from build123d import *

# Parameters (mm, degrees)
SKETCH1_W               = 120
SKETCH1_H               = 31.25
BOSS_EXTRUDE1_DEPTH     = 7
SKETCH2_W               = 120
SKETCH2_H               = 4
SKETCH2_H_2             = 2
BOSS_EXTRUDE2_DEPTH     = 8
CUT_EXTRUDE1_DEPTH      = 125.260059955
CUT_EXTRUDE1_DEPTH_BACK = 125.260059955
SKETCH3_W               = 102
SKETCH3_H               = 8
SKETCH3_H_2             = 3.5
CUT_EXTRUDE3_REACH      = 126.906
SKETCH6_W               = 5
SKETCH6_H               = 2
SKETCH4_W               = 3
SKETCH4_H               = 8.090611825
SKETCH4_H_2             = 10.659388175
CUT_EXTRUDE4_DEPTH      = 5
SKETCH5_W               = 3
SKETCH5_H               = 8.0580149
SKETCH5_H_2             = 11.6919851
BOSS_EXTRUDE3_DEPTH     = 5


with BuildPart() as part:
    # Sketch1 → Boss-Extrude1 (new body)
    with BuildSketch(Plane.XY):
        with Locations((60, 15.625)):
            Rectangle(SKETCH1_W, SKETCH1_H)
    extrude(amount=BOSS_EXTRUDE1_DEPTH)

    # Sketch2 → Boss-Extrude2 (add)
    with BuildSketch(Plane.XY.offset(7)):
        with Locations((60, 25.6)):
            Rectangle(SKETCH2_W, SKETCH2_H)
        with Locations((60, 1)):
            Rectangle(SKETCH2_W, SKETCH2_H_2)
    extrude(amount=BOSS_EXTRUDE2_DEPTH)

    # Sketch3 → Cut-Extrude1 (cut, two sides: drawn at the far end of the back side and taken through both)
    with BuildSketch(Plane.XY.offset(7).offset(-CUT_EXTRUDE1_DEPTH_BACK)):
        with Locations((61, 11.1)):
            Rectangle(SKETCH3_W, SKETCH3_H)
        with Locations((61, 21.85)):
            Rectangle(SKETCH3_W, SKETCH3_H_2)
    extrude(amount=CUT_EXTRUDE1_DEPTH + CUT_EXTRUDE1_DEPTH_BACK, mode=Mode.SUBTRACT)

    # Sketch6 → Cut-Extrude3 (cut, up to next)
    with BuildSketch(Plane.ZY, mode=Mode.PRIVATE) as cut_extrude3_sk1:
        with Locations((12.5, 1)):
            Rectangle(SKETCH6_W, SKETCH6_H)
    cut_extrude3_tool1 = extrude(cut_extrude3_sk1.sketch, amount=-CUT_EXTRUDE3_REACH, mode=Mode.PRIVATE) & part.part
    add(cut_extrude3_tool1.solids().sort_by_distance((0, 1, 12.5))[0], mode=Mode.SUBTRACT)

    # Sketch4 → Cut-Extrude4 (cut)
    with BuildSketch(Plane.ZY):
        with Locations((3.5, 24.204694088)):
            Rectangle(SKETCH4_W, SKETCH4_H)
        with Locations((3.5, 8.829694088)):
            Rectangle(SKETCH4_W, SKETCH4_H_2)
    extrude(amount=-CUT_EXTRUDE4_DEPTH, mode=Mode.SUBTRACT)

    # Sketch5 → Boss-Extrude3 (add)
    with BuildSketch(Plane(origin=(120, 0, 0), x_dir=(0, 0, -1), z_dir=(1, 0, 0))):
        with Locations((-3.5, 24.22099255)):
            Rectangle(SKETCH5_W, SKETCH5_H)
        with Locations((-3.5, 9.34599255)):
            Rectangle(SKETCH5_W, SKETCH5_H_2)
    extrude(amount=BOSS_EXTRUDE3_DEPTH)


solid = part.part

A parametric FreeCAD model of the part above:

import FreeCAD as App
import Part
import Sketcher
Q = App.Units.Quantity


def add_polygon(sketch, points):
    """Adds a closed chain of lines whose ends are joined by coincident constraints."""
    first, n = sketch.GeometryCount, len(points)
    for a, b in zip(points, points[1:] + points[:1]):
        sketch.addGeometry(Part.LineSegment(App.Vector(*a, 0), App.Vector(*b, 0)), False)
    for i in range(n):
        sketch.addConstraint(Sketcher.Constraint("Coincident", first + i, 2, first + (i + 1) % n, 1))

doc = App.newDocument("Part")
body = doc.addObject("PartDesign::Body", "Body")

# Sketch on XY plane
sketch1 = doc.addObject("Sketcher::SketchObject", "Sketch")
body.addObject(sketch1)
sketch1.AttachmentSupport = (doc.XY_Plane, [""])
sketch1.MapMode = "FlatFace"
add_polygon(sketch1, [(0, 31), (0, 0), (120, 0), (120, 31)])  # lines 0-3
sketch1.addConstraint([
    Sketcher.Constraint("Vertical", 0),
    Sketcher.Constraint("Horizontal", 1),
    Sketcher.Constraint("Vertical", 2),
    Sketcher.Constraint("Horizontal", 3),
    Sketcher.Constraint("Coincident", 0, 2, -1, 1),
    Sketcher.Constraint("DistanceX", 1, 1, 1, 2, Q("120 mm")),
    Sketcher.Constraint("DistanceY", 0, 2, 0, 1, Q("31.25 mm")),
])
pad1 = doc.addObject("PartDesign::Pad", "Pad")
body.addObject(pad1)
pad1.Profile = sketch1
pad1.Length = 7

# Sketch on XY plane
sketch2 = doc.addObject("Sketcher::SketchObject", "Sketch001")
body.addObject(sketch2)
sketch2.AttachmentSupport = (doc.XY_Plane, [""])
sketch2.MapMode = "FlatFace"
sketch2.AttachmentOffset = App.Placement(App.Vector(0, 0, 7), App.Rotation())
add_polygon(sketch2, [(0, 27.6), (0, 23.6), (120, 23.6), (120, 27.6)])  # lines 0-3
add_polygon(sketch2, [(0, 2), (0, 0), (120, 0), (120, 2)])  # lines 4-7
sketch2.addConstraint([
    Sketcher.Constraint("Vertical", 0),
    Sketcher.Constraint("Horizontal", 1),
    Sketcher.Constraint("Vertical", 2),
    Sketcher.Constraint("Horizontal", 3),
    Sketcher.Constraint("Vertical", 4),
    Sketcher.Constraint("Horizontal", 5),
    Sketcher.Constraint("Vertical", 6),
    Sketcher.Constraint("Horizontal", 7),
    Sketcher.Constraint("Coincident", 4, 2, -1, 1),
    Sketcher.Constraint("PointOnObject", 0, 2, -2),
    Sketcher.Constraint("Vertical", 2, 2, 5, 2),
    Sketcher.Constraint("DistanceX", 1, 1, 1, 2, Q("120 mm")),
    Sketcher.Constraint("DistanceY", 0, 2, 0, 1, Q("4 mm")),
    Sketcher.Constraint("DistanceY", 4, 2, 4, 1, Q("2 mm")),
    Sketcher.Constraint("DistanceY", -1, 1, 0, 2, Q("23.6 mm")),
])
pad2 = doc.addObject("PartDesign::Pad", "Pad001")
body.addObject(pad2)
pad2.Profile = sketch2
pad2.Length = 8

# Sketch on XY plane
sketch3 = doc.addObject("Sketcher::SketchObject", "Sketch002")
body.addObject(sketch3)
sketch3.AttachmentSupport = (doc.XY_Plane, [""])
sketch3.MapMode = "FlatFace"
sketch3.AttachmentOffset = App.Placement(App.Vector(0, 0, 7), App.Rotation())
add_polygon(sketch3, [(10, 15.1), (10, 7.1), (112, 7.1), (112, 15.1)])  # lines 0-3
add_polygon(sketch3, [(10, 23.6), (10, 20.1), (112, 20.1), (112, 23.6)])  # lines 4-7
sketch3.addConstraint([
    Sketcher.Constraint("Vertical", 0),
    Sketcher.Constraint("Horizontal", 1),
    Sketcher.Constraint("Vertical", 2),
    Sketcher.Constraint("Horizontal", 3),
    Sketcher.Constraint("Vertical", 4),
    Sketcher.Constraint("Horizontal", 5),
    Sketcher.Constraint("Vertical", 6),
    Sketcher.Constraint("Horizontal", 7),
    Sketcher.Constraint("Vertical", 3, 2, 4, 2),
    Sketcher.Constraint("Vertical", 2, 2, 5, 2),
    Sketcher.Constraint("DistanceX", 1, 1, 1, 2, Q("102 mm")),
    Sketcher.Constraint("DistanceY", 0, 2, 0, 1, Q("8 mm")),
    Sketcher.Constraint("DistanceY", 4, 2, 4, 1, Q("3.5 mm")),
    Sketcher.Constraint("DistanceX", -1, 1, 0, 2, Q("10 mm")),
    Sketcher.Constraint("DistanceY", 3, 2, 4, 2, Q("5 mm")),
    Sketcher.Constraint("DistanceY", -1, 1, 0, 2, Q("7.1 mm")),
])
pocket1 = doc.addObject("PartDesign::Pocket", "Pocket")
body.addObject(pocket1)
pocket1.Profile = sketch3
pocket1.Type = "ThroughAll"
pocket1.Midplane = True

# Sketch on YZ plane
sketch4 = doc.addObject("Sketcher::SketchObject", "Sketch003")
body.addObject(sketch4)
sketch4.AttachmentSupport = (doc.YZ_Plane, [""])
sketch4.MapMode = "FlatFace"
add_polygon(sketch4, [(2, 10), (0, 10), (0, 15), (2, 15)])  # lines 0-3
sketch4.addConstraint([
    Sketcher.Constraint("Horizontal", 0),
    Sketcher.Constraint("Vertical", 1),
    Sketcher.Constraint("Horizontal", 2),
    Sketcher.Constraint("Vertical", 3),
    Sketcher.Constraint("PointOnObject", 0, 2, -2),
    Sketcher.Constraint("DistanceX", 0, 2, 0, 1, Q("2 mm")),
    Sketcher.Constraint("DistanceY", 1, 1, 1, 2, Q("5 mm")),
    Sketcher.Constraint("DistanceY", -1, 1, 0, 2, Q("10 mm")),
])
pocket2 = doc.addObject("PartDesign::Pocket", "Pocket001")
body.addObject(pocket2)
pocket2.Profile = sketch4
pocket2.Type = "UpToFirst"
pocket2.Reversed = True

# Sketch on YZ plane
sketch5 = doc.addObject("Sketcher::SketchObject", "Sketch004")
body.addObject(sketch5)
sketch5.AttachmentSupport = (doc.YZ_Plane, [""])
sketch5.MapMode = "FlatFace"
add_polygon(sketch5, [(28.3, 2), (20.2, 2), (20.2, 5), (28.3, 5)])  # lines 0-3
add_polygon(sketch5, [(14.2, 2), (3.5, 2), (3.5, 5), (14.2, 5)])  # lines 4-7
sketch5.addConstraint([
    Sketcher.Constraint("Horizontal", 0),
    Sketcher.Constraint("Vertical", 1),
    Sketcher.Constraint("Horizontal", 2),
    Sketcher.Constraint("Vertical", 3),
    Sketcher.Constraint("Horizontal", 4),
    Sketcher.Constraint("Vertical", 5),
    Sketcher.Constraint("Horizontal", 6),
    Sketcher.Constraint("Vertical", 7),
    Sketcher.Constraint("Horizontal", 3, 2, 4, 2),
    Sketcher.Constraint("Horizontal", 2, 2, 5, 2),
    Sketcher.Constraint("DistanceY", 1, 1, 1, 2, Q("3 mm")),
    Sketcher.Constraint("DistanceY", -1, 1, 0, 2, Q("2 mm")),
    Sketcher.Constraint("DistanceX", 6, 2, 1, 2, Q("6 mm")),
    Sketcher.Constraint("DistanceX", -1, 1, 4, 2, Q("3.5 mm")),
    Sketcher.Constraint("DistanceX", -1, 1, 2, 2, Q("28.25 mm")),
    Sketcher.Constraint("DistanceX", 0, 2, 0, 1, Q("8.090612 mm")),
])
pocket3 = doc.addObject("PartDesign::Pocket", "Pocket002")
body.addObject(pocket3)
pocket3.Profile = sketch5
pocket3.Length = 5
pocket3.Reversed = True

# Sketch on YZ plane
sketch6 = doc.addObject("Sketcher::SketchObject", "Sketch005")
body.addObject(sketch6)
sketch6.AttachmentSupport = (doc.YZ_Plane, [""])
sketch6.MapMode = "FlatFace"
sketch6.AttachmentOffset = App.Placement(App.Vector(0, 0, 120), App.Rotation())
add_polygon(sketch6, [(28.2, 5), (20.2, 5), (20.2, 2), (28.2, 2)])  # lines 0-3
add_polygon(sketch6, [(15.2, 5), (3.5, 5), (3.5, 2), (15.2, 2)])  # lines 4-7
sketch6.addConstraint([
    Sketcher.Constraint("Horizontal", 0),
    Sketcher.Constraint("Vertical", 1),
    Sketcher.Constraint("Horizontal", 2),
    Sketcher.Constraint("Vertical", 3),
    Sketcher.Constraint("Horizontal", 4),
    Sketcher.Constraint("Vertical", 5),
    Sketcher.Constraint("Horizontal", 6),
    Sketcher.Constraint("Vertical", 7),
    Sketcher.Constraint("Horizontal", 3, 2, 4, 2),
    Sketcher.Constraint("Horizontal", 2, 2, 5, 2),
    Sketcher.Constraint("DistanceY", 1, 2, 1, 1, Q("3 mm")),
    Sketcher.Constraint("DistanceY", -1, 1, 0, 2, Q("5 mm")),
    Sketcher.Constraint("DistanceX", 6, 2, 1, 2, Q("5 mm")),
    Sketcher.Constraint("DistanceX", -1, 1, 4, 2, Q("3.5 mm")),
    Sketcher.Constraint("DistanceX", -1, 1, 2, 2, Q("28.25 mm")),
    Sketcher.Constraint("DistanceX", 0, 2, 0, 1, Q("8.058015 mm")),
])
pad3 = doc.addObject("PartDesign::Pad", "Pad002")
body.addObject(pad3)
pad3.Profile = sketch6
pad3.Length = 5

doc.recompute()
